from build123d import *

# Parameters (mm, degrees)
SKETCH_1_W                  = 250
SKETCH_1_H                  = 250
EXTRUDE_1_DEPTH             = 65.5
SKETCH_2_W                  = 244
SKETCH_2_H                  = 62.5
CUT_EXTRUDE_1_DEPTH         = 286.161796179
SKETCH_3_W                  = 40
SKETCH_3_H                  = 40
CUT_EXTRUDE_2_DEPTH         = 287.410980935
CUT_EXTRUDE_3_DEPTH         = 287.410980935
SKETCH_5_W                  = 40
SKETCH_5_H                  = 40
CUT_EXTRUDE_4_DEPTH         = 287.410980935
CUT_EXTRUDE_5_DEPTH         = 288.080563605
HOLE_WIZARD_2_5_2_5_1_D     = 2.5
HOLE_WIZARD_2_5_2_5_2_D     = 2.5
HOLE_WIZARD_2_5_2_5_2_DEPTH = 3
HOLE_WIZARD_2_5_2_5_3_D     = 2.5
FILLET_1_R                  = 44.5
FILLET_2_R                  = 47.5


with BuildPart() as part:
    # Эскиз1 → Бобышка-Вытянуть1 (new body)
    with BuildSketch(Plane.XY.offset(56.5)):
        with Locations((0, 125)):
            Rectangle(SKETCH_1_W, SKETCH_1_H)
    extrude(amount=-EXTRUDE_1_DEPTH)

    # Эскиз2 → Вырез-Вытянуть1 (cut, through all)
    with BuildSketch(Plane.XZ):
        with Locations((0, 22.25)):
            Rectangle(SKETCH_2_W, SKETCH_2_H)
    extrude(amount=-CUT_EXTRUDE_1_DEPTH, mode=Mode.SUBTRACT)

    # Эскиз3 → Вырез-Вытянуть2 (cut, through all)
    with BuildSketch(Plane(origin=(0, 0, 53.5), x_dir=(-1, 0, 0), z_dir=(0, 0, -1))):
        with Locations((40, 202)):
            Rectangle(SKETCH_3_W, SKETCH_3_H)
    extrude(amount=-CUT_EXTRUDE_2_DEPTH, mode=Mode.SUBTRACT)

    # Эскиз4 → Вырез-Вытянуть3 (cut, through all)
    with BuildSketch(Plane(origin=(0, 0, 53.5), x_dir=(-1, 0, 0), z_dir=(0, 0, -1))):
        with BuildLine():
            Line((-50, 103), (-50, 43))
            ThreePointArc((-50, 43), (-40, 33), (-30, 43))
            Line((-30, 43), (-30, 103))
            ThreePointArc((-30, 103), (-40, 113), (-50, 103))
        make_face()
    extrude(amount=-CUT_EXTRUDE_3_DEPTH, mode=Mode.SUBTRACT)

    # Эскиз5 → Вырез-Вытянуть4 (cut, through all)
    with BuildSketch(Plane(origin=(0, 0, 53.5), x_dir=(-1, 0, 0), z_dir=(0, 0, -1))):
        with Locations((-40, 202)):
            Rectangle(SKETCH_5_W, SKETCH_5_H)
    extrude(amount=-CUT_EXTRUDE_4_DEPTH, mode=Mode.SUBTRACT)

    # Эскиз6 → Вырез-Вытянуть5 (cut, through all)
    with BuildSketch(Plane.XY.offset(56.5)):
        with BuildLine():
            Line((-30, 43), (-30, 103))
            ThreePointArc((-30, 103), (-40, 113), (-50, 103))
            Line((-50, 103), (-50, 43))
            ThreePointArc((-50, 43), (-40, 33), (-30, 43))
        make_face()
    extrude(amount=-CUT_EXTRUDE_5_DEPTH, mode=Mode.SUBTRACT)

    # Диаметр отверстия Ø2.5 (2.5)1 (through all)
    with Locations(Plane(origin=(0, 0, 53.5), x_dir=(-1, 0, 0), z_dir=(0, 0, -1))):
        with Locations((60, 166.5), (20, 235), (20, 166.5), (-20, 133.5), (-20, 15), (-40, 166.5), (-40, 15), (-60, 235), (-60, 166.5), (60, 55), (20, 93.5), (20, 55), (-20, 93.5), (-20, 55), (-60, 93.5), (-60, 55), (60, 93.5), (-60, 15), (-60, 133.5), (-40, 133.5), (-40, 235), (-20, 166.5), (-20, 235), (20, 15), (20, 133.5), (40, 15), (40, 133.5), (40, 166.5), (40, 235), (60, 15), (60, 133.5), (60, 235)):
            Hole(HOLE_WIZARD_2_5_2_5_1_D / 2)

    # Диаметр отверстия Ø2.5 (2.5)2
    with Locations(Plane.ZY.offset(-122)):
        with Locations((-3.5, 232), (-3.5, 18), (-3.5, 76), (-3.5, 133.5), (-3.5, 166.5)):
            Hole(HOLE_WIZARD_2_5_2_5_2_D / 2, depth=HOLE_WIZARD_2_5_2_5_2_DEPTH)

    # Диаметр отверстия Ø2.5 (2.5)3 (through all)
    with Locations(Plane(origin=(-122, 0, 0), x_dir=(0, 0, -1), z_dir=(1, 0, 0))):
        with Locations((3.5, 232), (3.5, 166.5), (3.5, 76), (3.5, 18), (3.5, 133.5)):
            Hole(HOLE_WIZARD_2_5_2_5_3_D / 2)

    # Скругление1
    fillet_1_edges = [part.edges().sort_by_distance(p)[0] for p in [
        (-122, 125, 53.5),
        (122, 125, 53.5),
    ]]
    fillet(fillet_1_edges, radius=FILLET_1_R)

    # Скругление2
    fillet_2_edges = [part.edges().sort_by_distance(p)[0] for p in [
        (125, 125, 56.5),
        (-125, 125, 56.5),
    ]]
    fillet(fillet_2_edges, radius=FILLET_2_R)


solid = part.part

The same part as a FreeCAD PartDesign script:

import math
import FreeCAD as App
import Part
import Sketcher
from FreeCAD import Vector


def edges_at(feature, points):
    """Names of the edges that pass closest to the given points."""
    edges = feature.Shape.Edges
    near = lambda p: min(range(len(edges)), key=lambda i: edges[i].distToShape(Part.Vertex(*p))[0])
    return sorted({f"Edge{near(p) + 1}" for p in points})


def add_polygon(sketch, points):
    """Adds a closed chain of lines whose ends are joined by coincident constraints."""
    first, n = sketch.GeometryCount, len(points)
    for a, b in zip(points, points[1:] + points[:1]):
        sketch.addGeometry(Part.LineSegment(App.Vector(*a, 0), App.Vector(*b, 0)), False)
    for i in range(n):
        sketch.addConstraint(Sketcher.Constraint("Coincident", first + i, 2, first + (i + 1) % n, 1))

doc = App.newDocument("Part")
body = doc.addObject("PartDesign::Body", "Body")

# Sketch on XY plane
sketch1 = body.newObject("Sketcher::SketchObject", "Sketch")
sketch1.AttachmentSupport = (doc.getObject("XY_Plane"), [""])
sketch1.MapMode = "FlatFace"
sketch1.AttachmentOffset = App.Placement(Vector(0, 0, 56.5), App.Rotation())
add_polygon(sketch1, [(-125, 250), (-125, 0), (125, 0), (125, 250)])  # lines 0-3
sketch1.addConstraint([
    Sketcher.Constraint("Vertical", 0),
    Sketcher.Constraint("Horizontal", 1),
    Sketcher.Constraint("Vertical", 2),
    Sketcher.Constraint("Horizontal", 3),
    Sketcher.Constraint("Symmetric", 0, 2, 1, 2, -1, 1),
    Sketcher.Constraint("Equal", 3, 0),
    Sketcher.Constraint("DistanceX", 1, 1, 1, 2, 250.0),
])
pad1 = body.newObject("PartDesign::Pad", "Pad")
pad1.Profile = sketch1
pad1.Length = 65.5
pad1.Reversed = True

# Sketch on XZ plane
sketch2 = body.newObject("Sketcher::SketchObject", "Sketch001")
sketch2.AttachmentSupport = (doc.getObject("XZ_Plane"), [""])
sketch2.MapMode = "FlatFace"
add_polygon(sketch2, [(-122, 54), (-122, -9), (122, -9), (122, 54)])  # lines 0-3
sketch2.addConstraint([
    Sketcher.Constraint("Vertical", 0),
    Sketcher.Constraint("Horizontal", 1),
    Sketcher.Constraint("Vertical", 2),
    Sketcher.Constraint("Horizontal", 3),
    Sketcher.Constraint("DistanceX", 1, 1, 1, 2, 244.0),
    Sketcher.Constraint("DistanceY", 0, 2, 0, 1, 62.5),
    Sketcher.Constraint("DistanceX", 0, 2, -1, 1, 122.0),
    Sketcher.Constraint("DistanceY", 0, 2, -1, 1, 9.0),
])
pocket1 = body.newObject("PartDesign::Pocket", "Pocket")
pocket1.Profile = sketch2
pocket1.Type = "ThroughAll"

# Sketch on XY plane
sketch3 = body.newObject("Sketcher::SketchObject", "Sketch002")
sketch3.AttachmentSupport = (doc.getObject("XY_Plane"), [""])
sketch3.MapMode = "FlatFace"
sketch3.AttachmentOffset = App.Placement(Vector(0, 0, 53.5), App.Rotation())
add_polygon(sketch3, [(-20, 222), (-20, 182), (-60, 182), (-60, 222)])  # lines 0-3
sketch3.addConstraint([
    Sketcher.Constraint("Vertical", 0),
    Sketcher.Constraint("Horizontal", 1),
    Sketcher.Constraint("Vertical", 2),
    Sketcher.Constraint("Horizontal", 3),
    Sketcher.Constraint("Equal", 3, 0),
    Sketcher.Constraint("DistanceX", 1, 2, 1, 1, 40.0),
    Sketcher.Constraint("DistanceX", 0, 2, -1, 1, 20.0),
    Sketcher.Constraint("DistanceY", -1, 1, 0, 2, 182.0),
])
pocket2 = body.newObject("PartDesign::Pocket", "Pocket001")
pocket2.Profile = sketch3
pocket2.Type = "ThroughAll"
pocket2.Reversed = True

# Sketch on XY plane
sketch4 = body.newObject("Sketcher::SketchObject", "Sketch003")
sketch4.AttachmentSupport = (doc.getObject("XY_Plane"), [""])
sketch4.MapMode = "FlatFace"
sketch4.AttachmentOffset = App.Placement(Vector(0, 0, 53.5), App.Rotation())
sketch4.addGeometry([
    Part.LineSegment(Vector(50, 103, 0), Vector(50, 43, 0)),
    Part.ArcOfCircle(Part.Circle(Vector(40, 43, 0), Vector(0, 0, 1), 10), math.radians(180), math.radians(360)),
    Part.LineSegment(Vector(30, 43, 0), Vector(30, 103, 0)),
    Part.ArcOfCircle(Part.Circle(Vector(40, 103, 0), Vector(0, 0, 1), 10), math.radians(0), math.radians(180)),
], False)
sketch4.addConstraint([
    Sketcher.Constraint("Tangent", 0, 2, 1, 2),
    Sketcher.Constraint("Tangent", 1, 1, 2, 1),
    Sketcher.Constraint("Tangent", 2, 2, 3, 2),
    Sketcher.Constraint("Tangent", 3, 1, 0, 1),
    Sketcher.Constraint("Vertical", 0),
    Sketcher.Constraint("Vertical", 2),
    Sketcher.Constraint("Radius", 1, 10.0),
    Sketcher.Constraint("DistanceY", 0, 2, 0, 1, 60.0),
    Sketcher.Constraint("DistanceX", -1, 1, 1, 3, 40.0),
    Sketcher.Constraint("DistanceY", -1, 1, 1, 3, 43.0),
])
pocket3 = body.newObject("PartDesign::Pocket", "Pocket002")
pocket3.Profile = sketch4
pocket3.Type = "ThroughAll"
pocket3.Reversed = True

# Sketch on XY plane
sketch5 = body.newObject("Sketcher::SketchObject", "Sketch004")
sketch5.AttachmentSupport = (doc.getObject("XY_Plane"), [""])
sketch5.MapMode = "FlatFace"
sketch5.AttachmentOffset = App.Placement(Vector(0, 0, 53.5), App.Rotation())
add_polygon(sketch5, [(60, 222), (60, 182), (20, 182), (20, 222)])  # lines 0-3
sketch5.addConstraint([
    Sketcher.Constraint("Vertical", 0),
    Sketcher.Constraint("Horizontal", 1),
    Sketcher.Constraint("Vertical", 2),
    Sketcher.Constraint("Horizontal", 3),
    Sketcher.Constraint("Equal", 3, 0),
    Sketcher.Constraint("DistanceX", 1, 2, 1, 1, 40.0),
    Sketcher.Constraint("DistanceX", -1, 1, 0, 2, 60.0),
    Sketcher.Constraint("DistanceY", -1, 1, 0, 2, 182.0),
])
pocket4 = body.newObject("PartDesign::Pocket", "Pocket003")
pocket4.Profile = sketch5
pocket4.Type = "ThroughAll"
pocket4.Reversed = True

# Sketch on XY plane
sketch6 = body.newObject("Sketcher::SketchObject", "Sketch005")
sketch6.AttachmentSupport = (doc.getObject("XY_Plane"), [""])
sketch6.MapMode = "FlatFace"
sketch6.AttachmentOffset = App.Placement(Vector(0, 0, 56.5), App.Rotation())
sketch6.addGeometry([
    Part.LineSegment(Vector(-30, 43, 0), Vector(-30, 103, 0)),
    Part.ArcOfCircle(Part.Circle(Vector(-40, 103, 0), Vector(0, 0, 1), 10), math.radians(0), math.radians(180)),
    Part.LineSegment(Vector(-50, 103, 0), Vector(-50, 43, 0)),
    Part.ArcOfCircle(Part.Circle(Vector(-40, 43, 0), Vector(0, 0, 1), 10), math.radians(180), math.radians(360)),
], False)
sketch6.addConstraint([
    Sketcher.Constraint("Tangent", 0, 2, 1, 1),
    Sketcher.Constraint("Tangent", 1, 2, 2, 1),
    Sketcher.Constraint("Tangent", 2, 2, 3, 1),
    Sketcher.Constraint("Tangent", 3, 2, 0, 1),
    Sketcher.Constraint("Vertical", 0),
    Sketcher.Constraint("Vertical", 2),
    Sketcher.Constraint("Radius", 1, 10.0),
    Sketcher.Constraint("DistanceY", 0, 1, 0, 2, 60.0),
    Sketcher.Constraint("DistanceX", 1, 3, -1, 1, 40.0),
    Sketcher.Constraint("DistanceY", -1, 1, 1, 3, 103.0),
])
pocket5 = body.newObject("PartDesign::Pocket", "Pocket004")
pocket5.Profile = sketch6
pocket5.Type = "ThroughAll"

# Sketch on XY plane
sketch7 = body.newObject("Sketcher::SketchObject", "Sketch006")
sketch7.AttachmentSupport = (doc.getObject("XY_Plane"), [""])
sketch7.MapMode = "FlatFace"
sketch7.AttachmentOffset = App.Placement(Vector(0, 0, 53.5), App.Rotation())
sketch7.addGeometry([
    Part.Circle(Vector(-60, 166.5, 0), Vector(0, 0, 1), 1.2),  # 0
    Part.Circle(Vector(-20, 235, 0), Vector(0, 0, 1), 1.2),  # 1
    Part.Circle(Vector(-20, 166.5, 0), Vector(0, 0, 1), 1.2),  # 2
    Part.Circle(Vector(20, 133.5, 0), Vector(0, 0, 1), 1.2),  # 3
    Part.Circle(Vector(20, 15, 0), Vector(0, 0, 1), 1.2),  # 4
    Part.Circle(Vector(40, 166.5, 0), Vector(0, 0, 1), 1.2),  # 5
    Part.Circle(Vector(40, 15, 0), Vector(0, 0, 1), 1.2),  # 6
    Part.Circle(Vector(60, 235, 0), Vector(0, 0, 1), 1.2),  # 7
    Part.Circle(Vector(60, 166.5, 0), Vector(0, 0, 1), 1.2),  # 8
    Part.Circle(Vector(-60, 55, 0), Vector(0, 0, 1), 1.2),  # 9
    Part.Circle(Vector(-20, 93.5, 0), Vector(0, 0, 1), 1.2),  # 10
    Part.Circle(Vector(-20, 55, 0), Vector(0, 0, 1), 1.2),  # 11
    Part.Circle(Vector(20, 93.5, 0), Vector(0, 0, 1), 1.2),  # 12
    Part.Circle(Vector(20, 55, 0), Vector(0, 0, 1), 1.2),  # 13
    Part.Circle(Vector(60, 93.5, 0), Vector(0, 0, 1), 1.2),  # 14
    Part.Circle(Vector(60, 55, 0), Vector(0, 0, 1), 1.2),  # 15
    Part.Circle(Vector(-60, 93.5, 0), Vector(0, 0, 1), 1.2),  # 16
    Part.Circle(Vector(60, 15, 0), Vector(0, 0, 1), 1.2),  # 17
    Part.Circle(Vector(60, 133.5, 0), Vector(0, 0, 1), 1.2),  # 18
    Part.Circle(Vector(40, 133.5, 0), Vector(0, 0, 1), 1.2),  # 19
    Part.Circle(Vector(40, 235, 0), Vector(0, 0, 1), 1.2),  # 20
    Part.Circle(Vector(20, 166.5, 0), Vector(0, 0, 1), 1.2),  # 21
    Part.Circle(Vector(20, 235, 0), Vector(0, 0, 1), 1.2),  # 22
    Part.Circle(Vector(-20, 15, 0), Vector(0, 0, 1), 1.2),  # 23
    Part.Circle(Vector(-20, 133.5, 0), Vector(0, 0, 1), 1.2),  # 24
    Part.Circle(Vector(-40, 15, 0), Vector(0, 0, 1), 1.2),  # 25
    Part.Circle(Vector(-40, 133.5, 0), Vector(0, 0, 1), 1.2),  # 26
    Part.Circle(Vector(-40, 166.5, 0), Vector(0, 0, 1), 1.2),  # 27
    Part.Circle(Vector(-40, 235, 0), Vector(0, 0, 1), 1.2),  # 28
    Part.Circle(Vector(-60, 15, 0), Vector(0, 0, 1), 1.2),  # 29
    Part.Circle(Vector(-60, 133.5, 0), Vector(0, 0, 1), 1.2),  # 30
    Part.Circle(Vector(-60, 235, 0), Vector(0, 0, 1), 1.2),  # 31
], False)
sketch7.addConstraint([
    Sketcher.Constraint("Equal", 0, 1),
    Sketcher.Constraint("Equal", 1, 2),
    Sketcher.Constraint("Equal", 2, 3),
    Sketcher.Constraint("Equal", 3, 4),
    Sketcher.Constraint("Equal", 4, 5),
    Sketcher.Constraint("Equal", 5, 6),
    Sketcher.Constraint("Equal", 6, 7),
    Sketcher.Constraint("Equal", 7, 8),
    Sketcher.Constraint("Equal", 8, 9),
    Sketcher.Constraint("Equal", 9, 10),
    Sketcher.Constraint("Equal", 10, 11),
    Sketcher.Constraint("Equal", 11, 12),
    Sketcher.Constraint("Equal", 12, 13),
    Sketcher.Constraint("Equal", 13, 14),
    Sketcher.Constraint("Equal", 14, 15),
    Sketcher.Constraint("Equal", 15, 16),
    Sketcher.Constraint("Equal", 16, 17),
    Sketcher.Constraint("Equal", 17, 18),
    Sketcher.Constraint("Equal", 18, 19),
    Sketcher.Constraint("Equal", 19, 20),
    Sketcher.Constraint("Equal", 20, 21),
    Sketcher.Constraint("Equal", 21, 22),
    Sketcher.Constraint("Equal", 22, 23),
    Sketcher.Constraint("Equal", 23, 24),
    Sketcher.Constraint("Equal", 24, 25),
    Sketcher.Constraint("Equal", 25, 26),
    Sketcher.Constraint("Equal", 26, 27),
    Sketcher.Constraint("Equal", 27, 28),
    Sketcher.Constraint("Equal", 28, 29),
    Sketcher.Constraint("Equal", 29, 30),
    Sketcher.Constraint("Equal", 30, 31),
    Sketcher.Constraint("Symmetric", 0, 3, 8, 3, -2),
    Sketcher.Constraint("Symmetric", 10, 3, 12, 3, -2),
    Sketcher.Constraint("Symmetric", 11, 3, 13, 3, -2),
    Sketcher.Constraint("Symmetric", 9, 3, 15, 3, -2),
    Sketcher.Constraint("Symmetric", 14, 3, 16, 3, -2),
    Sketcher.Constraint("Symmetric", 2, 3, 21, 3, -2),
    Sketcher.Constraint("Symmetric", 1, 3, 22, 3, -2),
    Sketcher.Constraint("Symmetric", 4, 3, 23, 3, -2),
    Sketcher.Constraint("Symmetric", 3, 3, 24, 3, -2),
    Sketcher.Constraint("Symmetric", 6, 3, 25, 3, -2),
    Sketcher.Constraint("Symmetric", 19, 3, 26, 3, -2),
    Sketcher.Constraint("Symmetric", 5, 3, 27, 3, -2),
    Sketcher.Constraint("Symmetric", 20, 3, 28, 3, -2),
    Sketcher.Constraint("Symmetric", 17, 3, 29, 3, -2),
    Sketcher.Constraint("Symmetric", 18, 3, 30, 3, -2),
    Sketcher.Constraint("Symmetric", 7, 3, 31, 3, -2),
    Sketcher.Constraint("Horizontal", 0, 3, 2, 3),
    Sketcher.Constraint("Horizontal", 2, 3, 5, 3),
    Sketcher.Constraint("Horizontal", 4, 3, 6, 3),
    Sketcher.Constraint("Horizontal", 1, 3, 7, 3),
    Sketcher.Constraint("Horizontal", 9, 3, 11, 3),
    Sketcher.Constraint("Horizontal", 12, 3, 14, 3),
    Sketcher.Constraint("Horizontal", 6, 3, 17, 3),
    Sketcher.Constraint("Horizontal", 3, 3, 18, 3),
    Sketcher.Constraint("Horizontal", 18, 3, 19, 3),
    Sketcher.Constraint("Horizontal", 7, 3, 20, 3),
    Sketcher.Constraint("Vertical", 1, 3, 2, 3),
    Sketcher.Constraint("Vertical", 3, 3, 4, 3),
    Sketcher.Constraint("Vertical", 5, 3, 6, 3),
    Sketcher.Constraint("Vertical", 7, 3, 8, 3),
    Sketcher.Constraint("Vertical", 0, 3, 9, 3),
    Sketcher.Constraint("Vertical", 2, 3, 10, 3),
    Sketcher.Constraint("Vertical", 10, 3, 11, 3),
    Sketcher.Constraint("Vertical", 4, 3, 12, 3),
    Sketcher.Constraint("Vertical", 8, 3, 14, 3),
    Sketcher.Constraint("Vertical", 15, 3, 17, 3),
    Sketcher.Constraint("Vertical", 17, 3, 18, 3),
    Sketcher.Constraint("Vertical", 6, 3, 19, 3),
    Sketcher.Constraint("Vertical", 19, 3, 20, 3),
    Sketcher.Constraint("Diameter", 0, 2.5),
    Sketcher.Constraint("DistanceX", 0, 3, -1, 1, 60.0),
    Sketcher.Constraint("DistanceX", 1, 3, -1, 1, 20.0),
    Sketcher.Constraint("DistanceY", -1, 1, 1, 3, 235.0),
    Sketcher.Constraint("DistanceY", -1, 1, 4, 3, 15.0),
    Sketcher.Constraint("DistanceX", -1, 1, 5, 3, 40.0),
    Sketcher.Constraint("DistanceY", -1, 1, 9, 3, 55.0),
    Sketcher.Constraint("DistanceY", 3, 3, 2, 3, 33.0),
    Sketcher.Constraint("DistanceY", 10, 3, 3, 3, 40.0),
    Sketcher.Constraint("DistanceY", -1, 1, 0, 3, 166.5),
])
doc.recompute()
hole = body.newObject("PartDesign::Hole", "Hole")
hole.Profile = sketch7
hole.ThreadType = "None"
hole.Diameter = 2.5
hole.DepthType = "ThroughAll"
hole.Reversed = True

# Sketch on YZ plane
sketch8 = body.newObject("Sketcher::SketchObject", "Sketch007")
sketch8.AttachmentSupport = (doc.getObject("YZ_Plane"), [""])
sketch8.MapMode = "FlatFace"
sketch8.AttachmentOffset = App.Placement(Vector(0, 0, 122), App.Rotation())
sketch8.addGeometry([
    Part.Circle(Vector(232, -3.5, 0), Vector(0, 0, 1), 1.2),  # 0
    Part.Circle(Vector(18, -3.5, 0), Vector(0, 0, 1), 1.2),  # 1
    Part.Circle(Vector(76, -3.5, 0), Vector(0, 0, 1), 1.2),  # 2
    Part.Circle(Vector(133.5, -3.5, 0), Vector(0, 0, 1), 1.2),  # 3
    Part.Circle(Vector(166.5, -3.5, 0), Vector(0, 0, 1), 1.2),  # 4
], False)
sketch8.addConstraint([
    Sketcher.Constraint("Equal", 0, 1),
    Sketcher.Constraint("Equal", 1, 2),
    Sketcher.Constraint("Equal", 2, 3),
    Sketcher.Constraint("Equal", 3, 4),
    Sketcher.Constraint("Horizontal", 0, 3, 1, 3),
    Sketcher.Constraint("Horizontal", 1, 3, 2, 3),
    Sketcher.Constraint("Horizontal", 2, 3, 3, 3),
    Sketcher.Constraint("Horizontal", 3, 3, 4, 3),
    Sketcher.Constraint("Diameter", 0, 2.5),
    Sketcher.Constraint("DistanceX", -1, 1, 0, 3, 232.0),
    Sketcher.Constraint("DistanceX", -1, 1, 1, 3, 18.0),
    Sketcher.Constraint("DistanceX", -1, 1, 2, 3, 76.0),
    Sketcher.Constraint("DistanceX", 3, 3, 4, 3, 33.0),
    Sketcher.Constraint("DistanceY", 0, 3, -1, 1, 3.5),
    Sketcher.Constraint("DistanceX", -1, 1, 3, 3, 133.5),
])
doc.recompute()
hole2 = body.newObject("PartDesign::Hole", "Hole001")
hole2.Profile = sketch8
hole2.ThreadType = "None"
hole2.Diameter = 2.5
hole2.DepthType = "Dimension"
hole2.Depth = 3
hole2.DrillPoint = "Flat"
hole2.Reversed = True

# Sketch on YZ plane
sketch9 = body.newObject("Sketcher::SketchObject", "Sketch008")
sketch9.AttachmentSupport = (doc.getObject("YZ_Plane"), [""])
sketch9.MapMode = "FlatFace"
sketch9.AttachmentOffset = App.Placement(Vector(0, 0, -122), App.Rotation())
sketch9.addGeometry([
    Part.Circle(Vector(232, -3.5, 0), Vector(0, 0, 1), 1.2),  # 0
    Part.Circle(Vector(166.5, -3.5, 0), Vector(0, 0, 1), 1.2),  # 1
    Part.Circle(Vector(76, -3.5, 0), Vector(0, 0, 1), 1.2),  # 2
    Part.Circle(Vector(18, -3.5, 0), Vector(0, 0, 1), 1.2),  # 3
    Part.Circle(Vector(133.5, -3.5, 0), Vector(0, 0, 1), 1.2),  # 4
], False)
sketch9.addConstraint([
    Sketcher.Constraint("Equal", 0, 1),
    Sketcher.Constraint("Equal", 1, 2),
    Sketcher.Constraint("Equal", 2, 3),
    Sketcher.Constraint("Equal", 3, 4),
    Sketcher.Constraint("Horizontal", 0, 3, 1, 3),
    Sketcher.Constraint("Horizontal", 1, 3, 2, 3),
    Sketcher.Constraint("Horizontal", 2, 3, 3, 3),
    Sketcher.Constraint("Horizontal", 3, 3, 4, 3),
    Sketcher.Constraint("Diameter", 0, 2.5),
    Sketcher.Constraint("DistanceX", -1, 1, 0, 3, 232.0),
    Sketcher.Constraint("DistanceX", -1, 1, 2, 3, 76.0),
    Sketcher.Constraint("DistanceX", -1, 1, 3, 3, 18.0),
    Sketcher.Constraint("DistanceX", 4, 3, 1, 3, 33.0),
    Sketcher.Constraint("DistanceY", 0, 3, -1, 1, 3.5),
    Sketcher.Constraint("DistanceX", -1, 1, 1, 3, 166.5),
])
doc.recompute()
hole3 = body.newObject("PartDesign::Hole", "Hole002")
hole3.Profile = sketch9
hole3.ThreadType = "None"
hole3.Diameter = 2.5
hole3.DepthType = "ThroughAll"
doc.recompute()

fillet = body.newObject("PartDesign::Fillet", "Fillet")
fillet.Base = (hole3, edges_at(hole3, [(-122, 125, 53.5), (122, 125, 53.5)]))
fillet.Radius = 44.5
doc.recompute()

fillet2 = body.newObject("PartDesign::Fillet", "Fillet001")
fillet2.Base = (fillet, edges_at(fillet, [(125, 125, 56.5), (-125, 125, 56.5)]))
fillet2.Radius = 47.5

doc.recompute()
